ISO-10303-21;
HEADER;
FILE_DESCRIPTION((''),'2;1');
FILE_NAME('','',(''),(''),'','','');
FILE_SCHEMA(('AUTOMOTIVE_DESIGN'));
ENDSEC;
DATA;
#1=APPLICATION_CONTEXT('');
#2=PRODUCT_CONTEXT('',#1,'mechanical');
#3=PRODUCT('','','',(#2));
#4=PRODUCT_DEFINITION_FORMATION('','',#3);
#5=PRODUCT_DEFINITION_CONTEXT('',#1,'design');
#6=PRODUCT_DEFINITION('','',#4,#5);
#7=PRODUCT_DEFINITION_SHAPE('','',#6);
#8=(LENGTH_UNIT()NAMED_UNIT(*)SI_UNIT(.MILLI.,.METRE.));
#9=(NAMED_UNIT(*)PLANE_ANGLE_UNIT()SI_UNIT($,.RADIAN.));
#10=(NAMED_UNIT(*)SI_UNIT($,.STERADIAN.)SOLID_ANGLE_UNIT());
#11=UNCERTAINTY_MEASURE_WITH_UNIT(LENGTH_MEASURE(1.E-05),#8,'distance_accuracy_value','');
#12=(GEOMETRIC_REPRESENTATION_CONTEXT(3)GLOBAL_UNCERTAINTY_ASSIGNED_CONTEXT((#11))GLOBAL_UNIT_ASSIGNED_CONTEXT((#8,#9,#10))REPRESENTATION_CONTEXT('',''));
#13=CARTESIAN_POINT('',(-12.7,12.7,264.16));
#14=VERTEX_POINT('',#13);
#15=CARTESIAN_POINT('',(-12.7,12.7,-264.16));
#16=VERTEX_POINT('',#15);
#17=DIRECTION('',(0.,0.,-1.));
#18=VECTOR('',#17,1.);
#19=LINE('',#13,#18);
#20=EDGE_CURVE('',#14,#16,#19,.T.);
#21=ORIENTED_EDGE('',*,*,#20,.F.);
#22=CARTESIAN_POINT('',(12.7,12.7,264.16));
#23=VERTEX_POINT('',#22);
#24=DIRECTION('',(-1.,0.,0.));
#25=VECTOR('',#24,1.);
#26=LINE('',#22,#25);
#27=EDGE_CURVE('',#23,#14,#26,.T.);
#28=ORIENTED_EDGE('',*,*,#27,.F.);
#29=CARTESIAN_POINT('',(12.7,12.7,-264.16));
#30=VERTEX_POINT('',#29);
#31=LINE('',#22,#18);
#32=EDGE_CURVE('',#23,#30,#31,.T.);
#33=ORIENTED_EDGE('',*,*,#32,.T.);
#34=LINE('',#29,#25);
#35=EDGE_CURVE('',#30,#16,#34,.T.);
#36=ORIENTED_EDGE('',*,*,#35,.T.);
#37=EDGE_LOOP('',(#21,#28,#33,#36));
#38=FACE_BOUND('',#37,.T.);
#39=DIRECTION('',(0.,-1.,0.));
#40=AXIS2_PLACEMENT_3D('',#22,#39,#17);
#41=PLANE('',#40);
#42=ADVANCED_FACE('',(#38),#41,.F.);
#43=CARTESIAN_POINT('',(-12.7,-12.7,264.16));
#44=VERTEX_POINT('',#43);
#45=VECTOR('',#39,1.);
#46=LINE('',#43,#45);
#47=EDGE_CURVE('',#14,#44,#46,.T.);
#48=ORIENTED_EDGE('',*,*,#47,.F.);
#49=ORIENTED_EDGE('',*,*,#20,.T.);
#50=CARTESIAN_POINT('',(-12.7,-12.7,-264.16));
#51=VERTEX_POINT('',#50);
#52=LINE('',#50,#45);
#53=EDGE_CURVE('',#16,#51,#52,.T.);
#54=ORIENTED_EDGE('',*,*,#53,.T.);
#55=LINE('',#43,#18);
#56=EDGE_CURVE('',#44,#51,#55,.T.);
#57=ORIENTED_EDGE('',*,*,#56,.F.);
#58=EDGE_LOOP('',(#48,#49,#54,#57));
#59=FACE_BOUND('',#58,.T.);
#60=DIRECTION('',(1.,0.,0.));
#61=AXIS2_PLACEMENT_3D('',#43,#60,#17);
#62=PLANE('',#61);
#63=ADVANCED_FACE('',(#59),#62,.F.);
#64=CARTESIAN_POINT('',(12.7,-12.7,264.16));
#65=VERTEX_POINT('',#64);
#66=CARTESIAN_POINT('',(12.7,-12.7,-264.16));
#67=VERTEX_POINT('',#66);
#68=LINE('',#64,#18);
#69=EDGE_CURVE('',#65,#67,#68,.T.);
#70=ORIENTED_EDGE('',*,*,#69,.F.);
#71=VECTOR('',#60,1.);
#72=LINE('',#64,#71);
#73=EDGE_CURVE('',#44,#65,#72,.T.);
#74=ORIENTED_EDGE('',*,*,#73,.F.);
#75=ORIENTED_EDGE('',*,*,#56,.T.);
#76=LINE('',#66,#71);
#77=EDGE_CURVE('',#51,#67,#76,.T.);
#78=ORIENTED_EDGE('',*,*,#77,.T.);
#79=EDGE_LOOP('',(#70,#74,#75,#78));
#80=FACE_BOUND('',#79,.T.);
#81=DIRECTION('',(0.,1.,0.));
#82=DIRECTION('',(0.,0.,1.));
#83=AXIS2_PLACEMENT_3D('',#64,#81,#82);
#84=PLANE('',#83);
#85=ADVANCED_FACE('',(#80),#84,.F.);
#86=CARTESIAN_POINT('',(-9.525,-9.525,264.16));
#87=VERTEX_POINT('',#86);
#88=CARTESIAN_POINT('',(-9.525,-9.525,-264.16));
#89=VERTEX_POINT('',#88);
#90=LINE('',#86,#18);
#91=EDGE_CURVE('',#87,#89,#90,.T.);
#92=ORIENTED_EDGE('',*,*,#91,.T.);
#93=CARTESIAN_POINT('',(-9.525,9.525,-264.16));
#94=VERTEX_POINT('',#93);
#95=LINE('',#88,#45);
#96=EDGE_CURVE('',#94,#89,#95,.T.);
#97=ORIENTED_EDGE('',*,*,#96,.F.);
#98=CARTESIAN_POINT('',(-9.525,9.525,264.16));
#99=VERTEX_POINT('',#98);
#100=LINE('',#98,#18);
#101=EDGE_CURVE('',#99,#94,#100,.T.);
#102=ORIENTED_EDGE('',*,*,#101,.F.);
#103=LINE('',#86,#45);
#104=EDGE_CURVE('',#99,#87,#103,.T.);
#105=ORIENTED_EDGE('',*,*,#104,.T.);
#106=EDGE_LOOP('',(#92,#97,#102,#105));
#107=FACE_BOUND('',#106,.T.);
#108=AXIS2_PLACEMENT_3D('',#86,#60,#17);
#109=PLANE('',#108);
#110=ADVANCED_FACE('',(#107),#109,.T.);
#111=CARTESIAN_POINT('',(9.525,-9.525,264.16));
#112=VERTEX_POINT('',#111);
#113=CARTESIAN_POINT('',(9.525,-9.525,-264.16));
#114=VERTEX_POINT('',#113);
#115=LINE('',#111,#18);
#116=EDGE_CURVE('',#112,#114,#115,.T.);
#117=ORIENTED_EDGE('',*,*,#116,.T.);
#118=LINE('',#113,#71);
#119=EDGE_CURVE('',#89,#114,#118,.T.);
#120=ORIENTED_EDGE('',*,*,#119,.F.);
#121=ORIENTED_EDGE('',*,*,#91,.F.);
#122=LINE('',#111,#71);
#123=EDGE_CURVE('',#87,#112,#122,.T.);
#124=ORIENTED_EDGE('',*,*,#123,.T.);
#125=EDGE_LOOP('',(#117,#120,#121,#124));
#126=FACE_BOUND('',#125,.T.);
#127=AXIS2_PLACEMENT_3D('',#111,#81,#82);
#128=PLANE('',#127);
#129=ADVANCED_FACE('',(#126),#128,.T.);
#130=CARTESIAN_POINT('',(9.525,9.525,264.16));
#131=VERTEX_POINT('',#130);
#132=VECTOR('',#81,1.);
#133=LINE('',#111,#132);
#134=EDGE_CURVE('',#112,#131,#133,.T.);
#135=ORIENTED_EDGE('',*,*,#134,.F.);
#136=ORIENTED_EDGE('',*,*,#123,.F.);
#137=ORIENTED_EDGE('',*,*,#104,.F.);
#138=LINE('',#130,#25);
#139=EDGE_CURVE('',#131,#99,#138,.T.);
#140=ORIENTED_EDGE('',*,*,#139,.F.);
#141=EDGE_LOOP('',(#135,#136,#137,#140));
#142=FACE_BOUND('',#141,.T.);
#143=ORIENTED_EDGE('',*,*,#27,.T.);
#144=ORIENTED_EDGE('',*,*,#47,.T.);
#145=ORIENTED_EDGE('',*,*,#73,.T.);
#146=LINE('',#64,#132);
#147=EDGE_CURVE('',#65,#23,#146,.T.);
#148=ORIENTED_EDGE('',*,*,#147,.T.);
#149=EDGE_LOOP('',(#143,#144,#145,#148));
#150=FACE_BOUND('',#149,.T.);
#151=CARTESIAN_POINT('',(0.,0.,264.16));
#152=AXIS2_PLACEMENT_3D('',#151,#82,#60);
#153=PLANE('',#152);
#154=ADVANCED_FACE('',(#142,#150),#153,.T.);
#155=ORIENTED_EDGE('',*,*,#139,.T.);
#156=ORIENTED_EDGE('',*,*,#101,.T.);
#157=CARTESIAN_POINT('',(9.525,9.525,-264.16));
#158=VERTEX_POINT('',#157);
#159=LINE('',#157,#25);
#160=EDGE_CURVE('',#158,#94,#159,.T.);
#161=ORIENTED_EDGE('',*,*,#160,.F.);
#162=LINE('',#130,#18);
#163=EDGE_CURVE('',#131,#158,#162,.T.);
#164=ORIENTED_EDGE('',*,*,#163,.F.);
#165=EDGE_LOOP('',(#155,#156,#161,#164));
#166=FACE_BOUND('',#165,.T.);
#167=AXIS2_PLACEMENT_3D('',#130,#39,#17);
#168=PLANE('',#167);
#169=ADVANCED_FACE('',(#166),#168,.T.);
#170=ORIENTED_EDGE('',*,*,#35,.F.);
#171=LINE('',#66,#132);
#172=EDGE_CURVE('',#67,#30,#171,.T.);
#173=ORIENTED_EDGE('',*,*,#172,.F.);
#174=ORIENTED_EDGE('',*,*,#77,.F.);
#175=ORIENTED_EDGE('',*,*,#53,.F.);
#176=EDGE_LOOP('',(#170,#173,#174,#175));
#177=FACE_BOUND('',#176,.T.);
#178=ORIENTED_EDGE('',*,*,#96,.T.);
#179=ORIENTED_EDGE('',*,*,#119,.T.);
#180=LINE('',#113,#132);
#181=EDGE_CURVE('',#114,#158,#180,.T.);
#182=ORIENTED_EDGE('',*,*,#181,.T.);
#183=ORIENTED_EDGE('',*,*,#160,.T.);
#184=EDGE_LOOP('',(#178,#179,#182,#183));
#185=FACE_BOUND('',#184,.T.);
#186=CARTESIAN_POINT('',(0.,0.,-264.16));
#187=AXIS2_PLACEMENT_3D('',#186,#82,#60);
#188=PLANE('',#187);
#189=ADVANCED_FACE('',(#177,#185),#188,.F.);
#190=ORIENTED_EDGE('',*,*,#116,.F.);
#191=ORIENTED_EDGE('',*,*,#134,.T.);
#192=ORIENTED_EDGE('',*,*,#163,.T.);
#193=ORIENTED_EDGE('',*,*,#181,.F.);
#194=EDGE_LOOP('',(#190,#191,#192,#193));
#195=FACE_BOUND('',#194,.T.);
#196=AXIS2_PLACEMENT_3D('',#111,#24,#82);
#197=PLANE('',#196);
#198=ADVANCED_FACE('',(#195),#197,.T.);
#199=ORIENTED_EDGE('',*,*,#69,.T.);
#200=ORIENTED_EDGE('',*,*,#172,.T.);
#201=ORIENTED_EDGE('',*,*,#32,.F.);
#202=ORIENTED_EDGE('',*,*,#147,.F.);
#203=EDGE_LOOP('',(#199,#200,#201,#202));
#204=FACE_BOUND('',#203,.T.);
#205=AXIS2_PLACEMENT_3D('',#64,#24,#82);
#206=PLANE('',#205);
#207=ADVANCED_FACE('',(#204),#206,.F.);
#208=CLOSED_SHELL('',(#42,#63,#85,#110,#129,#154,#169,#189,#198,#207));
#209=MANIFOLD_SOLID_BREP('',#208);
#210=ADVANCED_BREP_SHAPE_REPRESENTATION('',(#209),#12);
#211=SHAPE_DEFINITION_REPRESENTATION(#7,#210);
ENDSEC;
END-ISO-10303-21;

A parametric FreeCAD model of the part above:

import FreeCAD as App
import Part
import Sketcher
Q = App.Units.Quantity

doc = App.newDocument("Part")
body = doc.addObject("PartDesign::Body", "Body")

sketch1 = body.newObject("Sketcher::SketchObject", "Sketch")
sketch1.AttachmentSupport = (doc.getObject("XY_Plane"), [""])
sketch1.MapMode = "FlatFace"
sketch1.addGeometry(Part.LineSegment(App.Vector(-12.7, 12.7, 0), App.Vector(-12.7, -12.7, 0)), False)
sketch1.addGeometry(Part.LineSegment(App.Vector(-12.7, -12.7, 0), App.Vector(12.7, -12.7, 0)), False)
sketch1.addGeometry(Part.LineSegment(App.Vector(12.7, -12.7, 0), App.Vector(12.7, 12.7, 0)), False)
sketch1.addGeometry(Part.LineSegment(App.Vector(12.7, 12.7, 0), App.Vector(-12.7, 12.7, 0)), False)
sketch1.addGeometry(Part.LineSegment(App.Vector(9.525, -9.525, 0), App.Vector(-9.525, -9.525, 0)), False)
sketch1.addGeometry(Part.LineSegment(App.Vector(-9.525, -9.525, 0), App.Vector(-9.525, 9.525, 0)), False)
sketch1.addGeometry(Part.LineSegment(App.Vector(-9.525, 9.525, 0), App.Vector(9.525, 9.525, 0)), False)
sketch1.addGeometry(Part.LineSegment(App.Vector(9.525, 9.525, 0), App.Vector(9.525, -9.525, 0)), False)
sketch1.addConstraint(Sketcher.Constraint("Coincident", 0, 2, 1, 1))
sketch1.addConstraint(Sketcher.Constraint("Coincident", 1, 2, 2, 1))
sketch1.addConstraint(Sketcher.Constraint("Coincident", 2, 2, 3, 1))
sketch1.addConstraint(Sketcher.Constraint("Coincident", 3, 2, 0, 1))
sketch1.addConstraint(Sketcher.Constraint("Coincident", 4, 2, 5, 1))
sketch1.addConstraint(Sketcher.Constraint("Coincident", 5, 2, 6, 1))
sketch1.addConstraint(Sketcher.Constraint("Coincident", 6, 2, 7, 1))
sketch1.addConstraint(Sketcher.Constraint("Coincident", 7, 2, 4, 1))
sketch1.addConstraint(Sketcher.Constraint("Vertical", 0))
sketch1.addConstraint(Sketcher.Constraint("Horizontal", 1))
sketch1.addConstraint(Sketcher.Constraint("Vertical", 2))
sketch1.addConstraint(Sketcher.Constraint("Horizontal", 3))
sketch1.addConstraint(Sketcher.Constraint("Horizontal", 4))
sketch1.addConstraint(Sketcher.Constraint("Vertical", 5))
sketch1.addConstraint(Sketcher.Constraint("Horizontal", 6))
sketch1.addConstraint(Sketcher.Constraint("Vertical", 7))
sketch1.addConstraint(Sketcher.Constraint("Symmetric", 0, 2, 2, 2, -1, 1))
sketch1.addConstraint(Sketcher.Constraint("Symmetric", 4, 2, 6, 2, -1, 1))
sketch1.addConstraint(Sketcher.Constraint("Equal", 3, 0))
sketch1.addConstraint(Sketcher.Constraint("Equal", 6, 5))
sketch1.addConstraint(Sketcher.Constraint("DistanceX", 1, 1, 1, 2, Q("1 in")))
sketch1.addConstraint(Sketcher.Constraint("DistanceX", 4, 2, 4, 1, Q("0.75 in")))
pad1 = body.newObject("PartDesign::Pad", "Pad")
pad1.Profile = sketch1
pad1.Type = "TwoLengths"
pad1.Length = Q("10.4 in")
pad1.Length2 = Q("10.4 in")

doc.recompute()
